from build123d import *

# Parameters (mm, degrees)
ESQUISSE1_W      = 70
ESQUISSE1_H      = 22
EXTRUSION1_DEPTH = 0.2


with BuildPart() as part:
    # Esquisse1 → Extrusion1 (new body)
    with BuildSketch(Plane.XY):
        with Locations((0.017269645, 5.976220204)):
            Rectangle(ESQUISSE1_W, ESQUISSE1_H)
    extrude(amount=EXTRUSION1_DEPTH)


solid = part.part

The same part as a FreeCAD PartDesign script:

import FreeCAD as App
import Part
import Sketcher


def add_polygon(sketch, points):
    """Adds a closed chain of lines whose ends are joined by coincident constraints."""
    first, n = sketch.GeometryCount, len(points)
    for a, b in zip(points, points[1:] + points[:1]):
        sketch.addGeometry(Part.LineSegment(App.Vector(*a, 0), App.Vector(*b, 0)), False)
    for i in range(n):
        sketch.addConstraint(Sketcher.Constraint("Coincident", first + i, 2, first + (i + 1) % n, 1))

doc = App.newDocument("Part")
body = doc.addObject("PartDesign::Body", "Body")

# Sketch on XY plane
sketch1 = body.newObject("Sketcher::SketchObject", "Sketch")
sketch1.AttachmentSupport = (doc.getObject("XY_Plane"), [""])
sketch1.MapMode = "FlatFace"
add_polygon(sketch1, [(-35, 17), (-35, -5), (35, -5), (35, 17)])  # lines 0-3
sketch1.addConstraint([
    Sketcher.Constraint("Vertical", 0),
    Sketcher.Constraint("Horizontal", 1),
    Sketcher.Constraint("Vertical", 2),
    Sketcher.Constraint("Horizontal", 3),
    Sketcher.Constraint("DistanceX", 1, 1, 1, 2, 70.0),
    Sketcher.Constraint("DistanceY", 0, 2, 0, 1, 22.0),
    Sketcher.Constraint("DistanceX", 0, 2, -1, 1, 34.98273),
    Sketcher.Constraint("DistanceY", 0, 2, -1, 1, 5.02378),
])
pad1 = body.newObject("PartDesign::Pad", "Pad")
pad1.Profile = sketch1
pad1.Length = 0.2

doc.recompute()
